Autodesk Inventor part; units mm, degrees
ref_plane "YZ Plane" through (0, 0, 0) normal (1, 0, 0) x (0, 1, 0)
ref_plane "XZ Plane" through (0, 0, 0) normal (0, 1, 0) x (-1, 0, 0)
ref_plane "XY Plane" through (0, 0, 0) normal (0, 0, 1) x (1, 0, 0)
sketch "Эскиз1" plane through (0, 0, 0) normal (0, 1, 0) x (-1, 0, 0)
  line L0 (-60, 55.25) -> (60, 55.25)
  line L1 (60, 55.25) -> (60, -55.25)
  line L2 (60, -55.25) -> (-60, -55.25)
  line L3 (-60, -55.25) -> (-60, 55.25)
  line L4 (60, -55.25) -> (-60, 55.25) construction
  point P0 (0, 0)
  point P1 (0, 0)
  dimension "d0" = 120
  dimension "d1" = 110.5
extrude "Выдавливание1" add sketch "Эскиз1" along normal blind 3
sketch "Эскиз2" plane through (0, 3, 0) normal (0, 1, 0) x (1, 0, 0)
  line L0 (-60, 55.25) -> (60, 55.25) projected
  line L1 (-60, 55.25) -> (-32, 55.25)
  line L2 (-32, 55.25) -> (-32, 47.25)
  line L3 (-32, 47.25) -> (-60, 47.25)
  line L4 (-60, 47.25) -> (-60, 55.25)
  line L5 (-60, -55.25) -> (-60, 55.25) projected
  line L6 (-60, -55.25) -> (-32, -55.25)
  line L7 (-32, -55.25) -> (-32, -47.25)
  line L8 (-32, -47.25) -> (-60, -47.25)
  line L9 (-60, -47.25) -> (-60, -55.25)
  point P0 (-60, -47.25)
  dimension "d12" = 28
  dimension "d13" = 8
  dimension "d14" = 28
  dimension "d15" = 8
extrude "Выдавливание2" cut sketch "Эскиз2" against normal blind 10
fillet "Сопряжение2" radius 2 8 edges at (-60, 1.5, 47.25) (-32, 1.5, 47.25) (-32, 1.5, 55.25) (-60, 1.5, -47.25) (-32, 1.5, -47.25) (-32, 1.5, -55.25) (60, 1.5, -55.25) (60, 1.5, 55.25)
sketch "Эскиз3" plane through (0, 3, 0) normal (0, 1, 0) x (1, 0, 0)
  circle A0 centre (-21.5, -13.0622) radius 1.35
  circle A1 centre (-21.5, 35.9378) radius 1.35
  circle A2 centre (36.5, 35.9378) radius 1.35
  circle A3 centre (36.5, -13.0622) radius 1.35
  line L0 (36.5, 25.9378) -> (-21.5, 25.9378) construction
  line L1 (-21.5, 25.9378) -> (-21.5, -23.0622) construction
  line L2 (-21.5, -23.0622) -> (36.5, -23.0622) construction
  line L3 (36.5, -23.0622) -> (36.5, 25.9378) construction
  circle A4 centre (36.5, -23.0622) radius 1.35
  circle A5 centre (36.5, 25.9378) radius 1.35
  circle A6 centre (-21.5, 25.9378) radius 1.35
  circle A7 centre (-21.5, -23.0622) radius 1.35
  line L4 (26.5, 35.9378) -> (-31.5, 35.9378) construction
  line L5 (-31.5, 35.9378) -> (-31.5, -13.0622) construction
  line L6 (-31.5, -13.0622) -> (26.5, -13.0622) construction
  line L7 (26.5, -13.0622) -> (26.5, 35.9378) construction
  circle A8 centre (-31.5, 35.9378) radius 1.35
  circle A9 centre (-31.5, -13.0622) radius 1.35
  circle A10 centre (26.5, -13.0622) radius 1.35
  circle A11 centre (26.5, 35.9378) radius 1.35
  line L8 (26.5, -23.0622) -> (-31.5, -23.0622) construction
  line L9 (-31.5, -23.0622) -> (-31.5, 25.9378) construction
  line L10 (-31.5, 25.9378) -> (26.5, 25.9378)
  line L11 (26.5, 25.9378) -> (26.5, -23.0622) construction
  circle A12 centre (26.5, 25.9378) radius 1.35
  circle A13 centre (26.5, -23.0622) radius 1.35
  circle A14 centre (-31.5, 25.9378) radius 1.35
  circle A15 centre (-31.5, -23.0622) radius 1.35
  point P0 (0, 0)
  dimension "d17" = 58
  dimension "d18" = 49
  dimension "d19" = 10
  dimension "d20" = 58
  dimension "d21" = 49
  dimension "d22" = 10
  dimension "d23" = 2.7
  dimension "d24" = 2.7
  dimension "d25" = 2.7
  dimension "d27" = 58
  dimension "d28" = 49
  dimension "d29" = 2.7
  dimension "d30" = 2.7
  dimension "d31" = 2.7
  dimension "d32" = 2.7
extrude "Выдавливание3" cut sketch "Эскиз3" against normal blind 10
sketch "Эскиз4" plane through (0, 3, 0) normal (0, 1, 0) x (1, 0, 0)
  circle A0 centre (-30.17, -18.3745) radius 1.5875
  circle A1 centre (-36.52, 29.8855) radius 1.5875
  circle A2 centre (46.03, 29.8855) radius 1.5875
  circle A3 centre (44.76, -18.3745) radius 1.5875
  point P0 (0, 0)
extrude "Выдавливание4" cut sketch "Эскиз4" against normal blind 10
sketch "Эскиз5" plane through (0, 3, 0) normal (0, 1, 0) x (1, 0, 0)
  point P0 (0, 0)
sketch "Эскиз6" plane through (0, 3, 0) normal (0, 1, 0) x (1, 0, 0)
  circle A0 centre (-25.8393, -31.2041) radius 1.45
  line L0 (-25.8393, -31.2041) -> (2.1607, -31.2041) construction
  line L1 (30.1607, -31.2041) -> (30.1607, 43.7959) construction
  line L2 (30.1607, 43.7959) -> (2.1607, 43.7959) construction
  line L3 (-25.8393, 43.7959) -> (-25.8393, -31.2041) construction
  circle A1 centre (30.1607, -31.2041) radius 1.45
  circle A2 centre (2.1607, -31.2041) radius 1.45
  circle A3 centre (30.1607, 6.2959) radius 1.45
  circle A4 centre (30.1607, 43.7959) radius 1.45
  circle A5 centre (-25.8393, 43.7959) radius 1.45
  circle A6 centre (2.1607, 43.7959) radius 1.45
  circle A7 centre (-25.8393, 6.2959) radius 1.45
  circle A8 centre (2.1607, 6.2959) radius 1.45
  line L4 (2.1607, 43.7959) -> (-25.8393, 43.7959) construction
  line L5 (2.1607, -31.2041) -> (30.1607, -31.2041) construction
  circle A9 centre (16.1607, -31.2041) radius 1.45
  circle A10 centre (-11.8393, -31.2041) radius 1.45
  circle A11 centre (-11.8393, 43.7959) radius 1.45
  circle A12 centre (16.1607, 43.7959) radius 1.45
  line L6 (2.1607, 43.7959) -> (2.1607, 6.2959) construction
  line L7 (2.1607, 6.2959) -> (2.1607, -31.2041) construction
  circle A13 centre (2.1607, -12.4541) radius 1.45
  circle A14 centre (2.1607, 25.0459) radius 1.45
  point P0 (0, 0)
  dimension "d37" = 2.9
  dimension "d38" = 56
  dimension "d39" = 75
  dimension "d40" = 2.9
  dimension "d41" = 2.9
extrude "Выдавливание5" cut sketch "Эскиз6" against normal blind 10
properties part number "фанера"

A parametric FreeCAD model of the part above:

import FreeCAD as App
import Part
import Sketcher
from FreeCAD import Vector
Q = App.Units.Quantity


def edges_at(feature, points):
    """Names of the edges that pass closest to the given points."""
    edges = feature.Shape.Edges
    near = lambda p: min(range(len(edges)), key=lambda i: edges[i].distToShape(Part.Vertex(*p))[0])
    return sorted({f"Edge{near(p) + 1}" for p in points})

doc = App.newDocument("Part")
body = doc.addObject("PartDesign::Body", "Body")

# Sketch on XZ plane
sketch1 = body.newObject("Sketcher::SketchObject", "Sketch")
sketch1.AttachmentSupport = (doc.getObject("XZ_Plane"), [""])
sketch1.MapMode = "FlatFace"
sketch1.addGeometry(Part.LineSegment(Vector(-60, 55, 0), Vector(60, 55, 0)), False)
sketch1.addGeometry(Part.LineSegment(Vector(60, 55, 0), Vector(60, -55, 0)), False)
sketch1.addGeometry(Part.LineSegment(Vector(60, -55, 0), Vector(-60, -55, 0)), False)
sketch1.addGeometry(Part.LineSegment(Vector(-60, -55, 0), Vector(-60, 55, 0)), False)
sketch1.addConstraint(Sketcher.Constraint("Coincident", 0, 2, 1, 1))
sketch1.addConstraint(Sketcher.Constraint("Coincident", 1, 2, 2, 1))
sketch1.addConstraint(Sketcher.Constraint("Coincident", 2, 2, 3, 1))
sketch1.addConstraint(Sketcher.Constraint("Coincident", 3, 2, 0, 1))
sketch1.addConstraint(Sketcher.Constraint("Horizontal", 0))
sketch1.addConstraint(Sketcher.Constraint("Vertical", 1))
sketch1.addConstraint(Sketcher.Constraint("Horizontal", 2))
sketch1.addConstraint(Sketcher.Constraint("Vertical", 3))
sketch1.addConstraint(Sketcher.Constraint("Symmetric", 0, 2, 2, 2, -1, 1))
sketch1.addConstraint(Sketcher.Constraint("DistanceX", 0, 1, 0, 2, Q("120 mm")))
sketch1.addConstraint(Sketcher.Constraint("DistanceY", 1, 2, 1, 1, Q("110.5 mm")))
pad1 = body.newObject("PartDesign::Pad", "Pad")
pad1.Profile = sketch1
pad1.Length = 3
pad1.Reversed = True

# Sketch on XZ plane
sketch2 = body.newObject("Sketcher::SketchObject", "Sketch001")
sketch2.AttachmentSupport = (doc.getObject("XZ_Plane"), [""])
sketch2.MapMode = "FlatFace"
sketch2.AttachmentOffset = App.Placement(Vector(0, 0, -3), App.Rotation())
sketch2.addGeometry(Part.LineSegment(Vector(-32, 47, 0), Vector(-60, 47, 0)), False)
sketch2.addGeometry(Part.LineSegment(Vector(-60, 47, 0), Vector(-60, 55, 0)), False)
sketch2.addGeometry(Part.LineSegment(Vector(-60, 55, 0), Vector(-32, 55, 0)), False)
sketch2.addGeometry(Part.LineSegment(Vector(-32, 55, 0), Vector(-32, 47, 0)), False)
sketch2.addGeometry(Part.LineSegment(Vector(-32, -55, 0), Vector(-60, -55, 0)), False)
sketch2.addGeometry(Part.LineSegment(Vector(-60, -55, 0), Vector(-60, -47, 0)), False)
sketch2.addGeometry(Part.LineSegment(Vector(-60, -47, 0), Vector(-32, -47, 0)), False)
sketch2.addGeometry(Part.LineSegment(Vector(-32, -47, 0), Vector(-32, -55, 0)), False)
sketch2.addConstraint(Sketcher.Constraint("Coincident", 0, 2, 1, 1))
sketch2.addConstraint(Sketcher.Constraint("Coincident", 1, 2, 2, 1))
sketch2.addConstraint(Sketcher.Constraint("Coincident", 2, 2, 3, 1))
sketch2.addConstraint(Sketcher.Constraint("Coincident", 3, 2, 0, 1))
sketch2.addConstraint(Sketcher.Constraint("Coincident", 4, 2, 5, 1))
sketch2.addConstraint(Sketcher.Constraint("Coincident", 5, 2, 6, 1))
sketch2.addConstraint(Sketcher.Constraint("Coincident", 6, 2, 7, 1))
sketch2.addConstraint(Sketcher.Constraint("Coincident", 7, 2, 4, 1))
sketch2.addConstraint(Sketcher.Constraint("Horizontal", 0))
sketch2.addConstraint(Sketcher.Constraint("Vertical", 1))
sketch2.addConstraint(Sketcher.Constraint("Horizontal", 2))
sketch2.addConstraint(Sketcher.Constraint("Vertical", 3))
sketch2.addConstraint(Sketcher.Constraint("Horizontal", 4))
sketch2.addConstraint(Sketcher.Constraint("Vertical", 5))
sketch2.addConstraint(Sketcher.Constraint("Horizontal", 6))
sketch2.addConstraint(Sketcher.Constraint("Vertical", 7))
sketch2.addConstraint(Sketcher.Constraint("Symmetric", 1, 2, 4, 2, -1))
sketch2.addConstraint(Sketcher.Constraint("Symmetric", 3, 2, 6, 2, -1))
sketch2.addConstraint(Sketcher.Constraint("DistanceX", 0, 2, 0, 1, Q("28 mm")))
sketch2.addConstraint(Sketcher.Constraint("DistanceY", 1, 1, 1, 2, Q("8 mm")))
sketch2.addConstraint(Sketcher.Constraint("DistanceX", 0, 2, -1, 1, Q("60 mm")))
sketch2.addConstraint(Sketcher.Constraint("DistanceY", 4, 2, 0, 2, Q("102.5 mm")))
pocket1 = body.newObject("PartDesign::Pocket", "Pocket")
pocket1.Profile = sketch2
pocket1.Length = 10
pocket1.Reversed = True
doc.recompute()

fillet = body.newObject("PartDesign::Fillet", "Fillet")
fillet.Base = (pocket1, edges_at(pocket1, [
    (-60, 1.5, 47.25),
    (-32, 1.5, 47.25),
    (-32, 1.5, 55.25),
    (-60, 1.5, -47.25),
    (-32, 1.5, -47.25),
    (-32, 1.5, -55.25),
    (60, 1.5, -55.25),
    (60, 1.5, 55.25),
]))
fillet.Radius = 2

# Sketch on XZ plane
sketch3 = body.newObject("Sketcher::SketchObject", "Sketch002")
sketch3.AttachmentSupport = (doc.getObject("XZ_Plane"), [""])
sketch3.MapMode = "FlatFace"
sketch3.AttachmentOffset = App.Placement(Vector(0, 0, -3), App.Rotation())
sketch3.addGeometry(Part.Circle(Vector(-21.5, 13.1, 0), Vector(0, 0, 1), 1.4), False)
sketch3.addGeometry(Part.Circle(Vector(-21.5, -35.9, 0), Vector(0, 0, 1), 1.4), False)
sketch3.addGeometry(Part.Circle(Vector(36.5, -35.9, 0), Vector(0, 0, 1), 1.4), False)
sketch3.addGeometry(Part.Circle(Vector(36.5, 13.1, 0), Vector(0, 0, 1), 1.4), False)
sketch3.addGeometry(Part.Circle(Vector(36.5, 23.1, 0), Vector(0, 0, 1), 1.4), False)
sketch3.addGeometry(Part.Circle(Vector(36.5, -25.9, 0), Vector(0, 0, 1), 1.4), False)
sketch3.addGeometry(Part.Circle(Vector(-21.5, -25.9, 0), Vector(0, 0, 1), 1.4), False)
sketch3.addGeometry(Part.Circle(Vector(-31.5, -25.9, 0), Vector(0, 0, 1), 1.4), False)
sketch3.addGeometry(Part.Circle(Vector(26.5, -25.9, 0), Vector(0, 0, 1), 1.4), False)
sketch3.addGeometry(Part.Circle(Vector(-21.5, 23.1, 0), Vector(0, 0, 1), 1.4), False)
sketch3.addGeometry(Part.Circle(Vector(-31.5, -35.9, 0), Vector(0, 0, 1), 1.4), False)
sketch3.addGeometry(Part.Circle(Vector(-31.5, 13.1, 0), Vector(0, 0, 1), 1.4), False)
sketch3.addGeometry(Part.Circle(Vector(26.5, 13.1, 0), Vector(0, 0, 1), 1.4), False)
sketch3.addGeometry(Part.Circle(Vector(26.5, -35.9, 0), Vector(0, 0, 1), 1.4), False)
sketch3.addGeometry(Part.Circle(Vector(26.5, 23.1, 0), Vector(0, 0, 1), 1.4), False)
sketch3.addGeometry(Part.Circle(Vector(-31.5, 23.1, 0), Vector(0, 0, 1), 1.4), False)
sketch3.addConstraint(Sketcher.Constraint("Equal", 0, 1))
sketch3.addConstraint(Sketcher.Constraint("Equal", 1, 2))
sketch3.addConstraint(Sketcher.Constraint("Equal", 2, 3))
sketch3.addConstraint(Sketcher.Constraint("Equal", 3, 4))
sketch3.addConstraint(Sketcher.Constraint("Equal", 4, 5))
sketch3.addConstraint(Sketcher.Constraint("Equal", 5, 6))
sketch3.addConstraint(Sketcher.Constraint("Equal", 6, 7))
sketch3.addConstraint(Sketcher.Constraint("Equal", 7, 8))
sketch3.addConstraint(Sketcher.Constraint("Equal", 8, 9))
sketch3.addConstraint(Sketcher.Constraint("Equal", 9, 10))
sketch3.addConstraint(Sketcher.Constraint("Equal", 10, 11))
sketch3.addConstraint(Sketcher.Constraint("Equal", 11, 12))
sketch3.addConstraint(Sketcher.Constraint("Equal", 12, 13))
sketch3.addConstraint(Sketcher.Constraint("Equal", 13, 14))
sketch3.addConstraint(Sketcher.Constraint("Equal", 14, 15))
sketch3.addConstraint(Sketcher.Constraint("Horizontal", 1, 3, 2, 3))
sketch3.addConstraint(Sketcher.Constraint("Horizontal", 0, 3, 3, 3))
sketch3.addConstraint(Sketcher.Constraint("Horizontal", 5, 3, 6, 3))
sketch3.addConstraint(Sketcher.Constraint("Horizontal", 6, 3, 7, 3))
sketch3.addConstraint(Sketcher.Constraint("Horizontal", 7, 3, 8, 3))
sketch3.addConstraint(Sketcher.Constraint("Horizontal", 4, 3, 9, 3))
sketch3.addConstraint(Sketcher.Constraint("Horizontal", 2, 3, 10, 3))
sketch3.addConstraint(Sketcher.Constraint("Horizontal", 3, 3, 11, 3))
sketch3.addConstraint(Sketcher.Constraint("Horizontal", 11, 3, 12, 3))
sketch3.addConstraint(Sketcher.Constraint("Horizontal", 10, 3, 13, 3))
sketch3.addConstraint(Sketcher.Constraint("Horizontal", 9, 3, 14, 3))
sketch3.addConstraint(Sketcher.Constraint("Horizontal", 14, 3, 15, 3))
sketch3.addConstraint(Sketcher.Constraint("Vertical", 0, 3, 1, 3))
sketch3.addConstraint(Sketcher.Constraint("Vertical", 2, 3, 3, 3))
sketch3.addConstraint(Sketcher.Constraint("Vertical", 3, 3, 4, 3))
sketch3.addConstraint(Sketcher.Constraint("Vertical", 4, 3, 5, 3))
sketch3.addConstraint(Sketcher.Constraint("Vertical", 1, 3, 6, 3))
sketch3.addConstraint(Sketcher.Constraint("Vertical", 6, 3, 9, 3))
sketch3.addConstraint(Sketcher.Constraint("Vertical", 7, 3, 10, 3))
sketch3.addConstraint(Sketcher.Constraint("Vertical", 10, 3, 11, 3))
sketch3.addConstraint(Sketcher.Constraint("Vertical", 8, 3, 12, 3))
sketch3.addConstraint(Sketcher.Constraint("Vertical", 12, 3, 13, 3))
sketch3.addConstraint(Sketcher.Constraint("Vertical", 13, 3, 14, 3))
sketch3.addConstraint(Sketcher.Constraint("Vertical", 11, 3, 15, 3))
sketch3.addConstraint(Sketcher.Constraint("Diameter", 0, Q("2.7 mm")))
sketch3.addConstraint(Sketcher.Constraint("DistanceY", 1, 3, 0, 3, Q("49 mm")))
sketch3.addConstraint(Sketcher.Constraint("DistanceX", 1, 3, 2, 3, Q("58 mm")))
sketch3.addConstraint(Sketcher.Constraint("DistanceY", 3, 3, 4, 3, Q("10 mm")))
sketch3.addConstraint(Sketcher.Constraint("DistanceY", 2, 3, 5, 3, Q("10 mm")))
sketch3.addConstraint(Sketcher.Constraint("DistanceX", 7, 3, 6, 3, Q("10 mm")))
sketch3.addConstraint(Sketcher.Constraint("DistanceX", 8, 3, 5, 3, Q("10 mm")))
sketch3.addConstraint(Sketcher.Constraint("DistanceX", 0, 3, -1, 1, Q("21.5 mm")))
sketch3.addConstraint(Sketcher.Constraint("DistanceY", -1, 1, 0, 3, Q("13.0622 mm")))
pocket2 = body.newObject("PartDesign::Pocket", "Pocket001")
pocket2.Profile = sketch3
pocket2.Length = 10
pocket2.Reversed = True

# Sketch on XZ plane
sketch4 = body.newObject("Sketcher::SketchObject", "Sketch003")
sketch4.AttachmentSupport = (doc.getObject("XZ_Plane"), [""])
sketch4.MapMode = "FlatFace"
sketch4.AttachmentOffset = App.Placement(Vector(0, 0, -3), App.Rotation())
sketch4.addGeometry(Part.Circle(Vector(-30.2, 18.4, 0), Vector(0, 0, 1), 1.6), False)
sketch4.addGeometry(Part.Circle(Vector(-36.5, -29.9, 0), Vector(0, 0, 1), 1.6), False)
sketch4.addGeometry(Part.Circle(Vector(46, -29.9, 0), Vector(0, 0, 1), 1.6), False)
sketch4.addGeometry(Part.Circle(Vector(44.8, 18.4, 0), Vector(0, 0, 1), 1.6), False)
sketch4.addConstraint(Sketcher.Constraint("Equal", 0, 1))
sketch4.addConstraint(Sketcher.Constraint("Equal", 1, 2))
sketch4.addConstraint(Sketcher.Constraint("Equal", 2, 3))
sketch4.addConstraint(Sketcher.Constraint("Horizontal", 1, 3, 2, 3))
sketch4.addConstraint(Sketcher.Constraint("Horizontal", 0, 3, 3, 3))
sketch4.addConstraint(Sketcher.Constraint("Diameter", 0, Q("3.175 mm")))
sketch4.addConstraint(Sketcher.Constraint("DistanceX", 0, 3, 2, 3, Q("76.2 mm")))
sketch4.addConstraint(Sketcher.Constraint("DistanceX", 0, 3, -1, 1, Q("30.17 mm")))
sketch4.addConstraint(Sketcher.Constraint("DistanceX", 1, 3, -1, 1, Q("36.52 mm")))
sketch4.addConstraint(Sketcher.Constraint("DistanceX", -1, 1, 3, 3, Q("44.76 mm")))
sketch4.addConstraint(Sketcher.Constraint("DistanceY", 1, 3, 0, 3, Q("48.26 mm")))
sketch4.addConstraint(Sketcher.Constraint("DistanceY", -1, 1, 0, 3, Q("18.3745 mm")))
pocket3 = body.newObject("PartDesign::Pocket", "Pocket002")
pocket3.Profile = sketch4
pocket3.Length = 10
pocket3.Reversed = True

# Sketch on XZ plane
sketch5 = body.newObject("Sketcher::SketchObject", "Sketch004")
sketch5.AttachmentSupport = (doc.getObject("XZ_Plane"), [""])
sketch5.MapMode = "FlatFace"
sketch5.AttachmentOffset = App.Placement(Vector(0, 0, -3), App.Rotation())
sketch5.addGeometry(Part.Circle(Vector(-25.8, 31.2, 0), Vector(0, 0, 1), 1.4), False)
sketch5.addGeometry(Part.Circle(Vector(30.2, 31.2, 0), Vector(0, 0, 1), 1.4), False)
sketch5.addGeometry(Part.Circle(Vector(2.2, 31.2, 0), Vector(0, 0, 1), 1.4), False)
sketch5.addGeometry(Part.Circle(Vector(30.2, -6.3, 0), Vector(0, 0, 1), 1.4), False)
sketch5.addGeometry(Part.Circle(Vector(30.2, -43.8, 0), Vector(0, 0, 1), 1.4), False)
sketch5.addGeometry(Part.Circle(Vector(-25.8, -43.8, 0), Vector(0, 0, 1), 1.4), False)
sketch5.addGeometry(Part.Circle(Vector(2.2, -43.8, 0), Vector(0, 0, 1), 1.4), False)
sketch5.addGeometry(Part.Circle(Vector(-25.8, -6.3, 0), Vector(0, 0, 1), 1.4), False)
sketch5.addGeometry(Part.Circle(Vector(2.2, -6.3, 0), Vector(0, 0, 1), 1.4), False)
sketch5.addGeometry(Part.Circle(Vector(16.2, 31.2, 0), Vector(0, 0, 1), 1.4), False)
sketch5.addGeometry(Part.Circle(Vector(-11.8, 31.2, 0), Vector(0, 0, 1), 1.4), False)
sketch5.addGeometry(Part.Circle(Vector(-11.8, -43.8, 0), Vector(0, 0, 1), 1.4), False)
sketch5.addGeometry(Part.Circle(Vector(16.2, -43.8, 0), Vector(0, 0, 1), 1.4), False)
sketch5.addGeometry(Part.Circle(Vector(2.2, 12.5, 0), Vector(0, 0, 1), 1.4), False)
sketch5.addGeometry(Part.Circle(Vector(2.2, -25, 0), Vector(0, 0, 1), 1.4), False)
sketch5.addConstraint(Sketcher.Constraint("Equal", 0, 1))
sketch5.addConstraint(Sketcher.Constraint("Equal", 1, 2))
sketch5.addConstraint(Sketcher.Constraint("Equal", 2, 3))
sketch5.addConstraint(Sketcher.Constraint("Equal", 3, 4))
sketch5.addConstraint(Sketcher.Constraint("Equal", 4, 5))
sketch5.addConstraint(Sketcher.Constraint("Equal", 5, 6))
sketch5.addConstraint(Sketcher.Constraint("Equal", 6, 7))
sketch5.addConstraint(Sketcher.Constraint("Equal", 7, 8))
sketch5.addConstraint(Sketcher.Constraint("Equal", 8, 9))
sketch5.addConstraint(Sketcher.Constraint("Equal", 9, 10))
sketch5.addConstraint(Sketcher.Constraint("Equal", 10, 11))
sketch5.addConstraint(Sketcher.Constraint("Equal", 11, 12))
sketch5.addConstraint(Sketcher.Constraint("Equal", 12, 13))
sketch5.addConstraint(Sketcher.Constraint("Equal", 13, 14))
sketch5.addConstraint(Sketcher.Constraint("Horizontal", 0, 3, 1, 3))
sketch5.addConstraint(Sketcher.Constraint("Horizontal", 1, 3, 2, 3))
sketch5.addConstraint(Sketcher.Constraint("Horizontal", 4, 3, 5, 3))
sketch5.addConstraint(Sketcher.Constraint("Horizontal", 5, 3, 6, 3))
sketch5.addConstraint(Sketcher.Constraint("Horizontal", 3, 3, 7, 3))
sketch5.addConstraint(Sketcher.Constraint("Horizontal", 7, 3, 8, 3))
sketch5.addConstraint(Sketcher.Constraint("Horizontal", 2, 3, 9, 3))
sketch5.addConstraint(Sketcher.Constraint("Horizontal", 9, 3, 10, 3))
sketch5.addConstraint(Sketcher.Constraint("Horizontal", 6, 3, 11, 3))
sketch5.addConstraint(Sketcher.Constraint("Horizontal", 11, 3, 12, 3))
sketch5.addConstraint(Sketcher.Constraint("Vertical", 1, 3, 3, 3))
sketch5.addConstraint(Sketcher.Constraint("Vertical", 3, 3, 4, 3))
sketch5.addConstraint(Sketcher.Constraint("Vertical", 0, 3, 5, 3))
sketch5.addConstraint(Sketcher.Constraint("Vertical", 2, 3, 6, 3))
sketch5.addConstraint(Sketcher.Constraint("Vertical", 5, 3, 7, 3))
sketch5.addConstraint(Sketcher.Constraint("Vertical", 6, 3, 8, 3))
sketch5.addConstraint(Sketcher.Constraint("Vertical", 10, 3, 11, 3))
sketch5.addConstraint(Sketcher.Constraint("Vertical", 9, 3, 12, 3))
sketch5.addConstraint(Sketcher.Constraint("Vertical", 8, 3, 13, 3))
sketch5.addConstraint(Sketcher.Constraint("Vertical", 13, 3, 14, 3))
sketch5.addConstraint(Sketcher.Constraint("Diameter", 0, Q("2.9 mm")))
sketch5.addConstraint(Sketcher.Constraint("DistanceX", 0, 3, 1, 3, Q("56 mm")))
sketch5.addConstraint(Sketcher.Constraint("DistanceY", 4, 3, 1, 3, Q("75 mm")))
sketch5.addConstraint(Sketcher.Constraint("DistanceX", 0, 3, 2, 3, Q("28 mm")))
sketch5.addConstraint(Sketcher.Constraint("DistanceX", 2, 3, 9, 3, Q("14 mm")))
sketch5.addConstraint(Sketcher.Constraint("DistanceX", 10, 3, 2, 3, Q("14 mm")))
sketch5.addConstraint(Sketcher.Constraint("DistanceY", 3, 3, 1, 3, Q("37.5 mm")))
sketch5.addConstraint(Sketcher.Constraint("DistanceY", 13, 3, 2, 3, Q("18.75 mm")))
sketch5.addConstraint(Sketcher.Constraint("DistanceY", 14, 3, 8, 3, Q("18.75 mm")))
sketch5.addConstraint(Sketcher.Constraint("DistanceY", -1, 1, 0, 3, Q("31.204 mm")))
sketch5.addConstraint(Sketcher.Constraint("DistanceX", 0, 3, -1, 1, Q("25.8393 mm")))
pocket4 = body.newObject("PartDesign::Pocket", "Pocket003")
pocket4.Profile = sketch5
pocket4.Length = 10
pocket4.Reversed = True

doc.recompute()
